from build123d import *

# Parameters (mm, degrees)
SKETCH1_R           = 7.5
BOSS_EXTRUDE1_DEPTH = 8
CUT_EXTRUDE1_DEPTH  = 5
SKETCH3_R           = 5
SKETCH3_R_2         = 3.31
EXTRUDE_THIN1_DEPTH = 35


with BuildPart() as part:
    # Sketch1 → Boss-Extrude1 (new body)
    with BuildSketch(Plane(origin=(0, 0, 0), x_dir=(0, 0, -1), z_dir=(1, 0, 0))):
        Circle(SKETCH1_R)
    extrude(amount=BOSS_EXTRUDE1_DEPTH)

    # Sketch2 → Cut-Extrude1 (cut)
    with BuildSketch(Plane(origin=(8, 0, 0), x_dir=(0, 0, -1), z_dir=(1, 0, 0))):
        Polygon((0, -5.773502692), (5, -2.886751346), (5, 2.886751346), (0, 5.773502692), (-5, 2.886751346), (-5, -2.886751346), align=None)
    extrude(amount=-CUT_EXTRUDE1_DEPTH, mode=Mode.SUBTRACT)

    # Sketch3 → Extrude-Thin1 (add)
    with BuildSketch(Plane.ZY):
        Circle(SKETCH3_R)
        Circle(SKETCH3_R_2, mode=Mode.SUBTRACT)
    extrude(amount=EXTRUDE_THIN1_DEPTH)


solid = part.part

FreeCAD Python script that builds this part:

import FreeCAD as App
import Part
import Sketcher
Q = App.Units.Quantity

doc = App.newDocument("Part")
body = doc.addObject("PartDesign::Body", "Body")

# Sketch on YZ plane
sketch1 = body.newObject("Sketcher::SketchObject", "Sketch")
sketch1.AttachmentSupport = (doc.getObject("YZ_Plane"), [""])
sketch1.MapMode = "FlatFace"
sketch1.addGeometry(Part.Circle(App.Vector(0, 0, 0), App.Vector(0, 0, 1), 8), False)
sketch1.addConstraint([
    Sketcher.Constraint("Coincident", 0, 3, -1, 1),
    Sketcher.Constraint("Diameter", 0, Q("15 mm")),
])
pad1 = body.newObject("PartDesign::Pad", "Pad")
pad1.Profile = sketch1
pad1.Length = 8

# Sketch on YZ plane
sketch2 = body.newObject("Sketcher::SketchObject", "Sketch001")
sketch2.AttachmentSupport = (doc.getObject("YZ_Plane"), [""])
sketch2.MapMode = "FlatFace"
sketch2.AttachmentOffset = App.Placement(App.Vector(0, 0, 8), App.Rotation())
sketch2.addGeometry([
    Part.LineSegment(App.Vector(-6, 0, 0), App.Vector(-3, -5, 0)),  # 0
    Part.LineSegment(App.Vector(-3, -5, 0), App.Vector(3, -5, 0)),  # 1
    Part.LineSegment(App.Vector(3, -5, 0), App.Vector(6, 0, 0)),  # 2
    Part.LineSegment(App.Vector(6, 0, 0), App.Vector(3, 5, 0)),  # 3
    Part.LineSegment(App.Vector(3, 5, 0), App.Vector(-3, 5, 0)),  # 4
    Part.LineSegment(App.Vector(-3, 5, 0), App.Vector(-6, 0, 0)),  # 5
], False)
sketch2.addConstraint([
    Sketcher.Constraint("Coincident", 0, 2, 1, 1),
    Sketcher.Constraint("Coincident", 1, 2, 2, 1),
    Sketcher.Constraint("Coincident", 2, 2, 3, 1),
    Sketcher.Constraint("Coincident", 3, 2, 4, 1),
    Sketcher.Constraint("Coincident", 4, 2, 5, 1),
    Sketcher.Constraint("Coincident", 5, 2, 0, 1),
    Sketcher.Constraint("Horizontal", 1),
    Sketcher.Constraint("Horizontal", 4),
    Sketcher.Constraint("Symmetric", 0, 2, 3, 2, -1, 1),
    Sketcher.Constraint("Symmetric", 2, 2, 5, 2, -1, 1),
    Sketcher.Constraint("PointOnObject", 2, 2, -1),
    Sketcher.Constraint("Parallel", 2, 5),
    Sketcher.Constraint("Vertical", 1, 2, 3, 2),
    Sketcher.Constraint("Angle", 0, Q("-60 deg")),
    Sketcher.Constraint("DistanceY", 0, 2, -1, 1, Q("5 mm")),
    Sketcher.Constraint("DistanceX", 1, 1, 1, 2, Q("5.773503 mm")),
])
pocket1 = body.newObject("PartDesign::Pocket", "Pocket")
pocket1.Profile = sketch2
pocket1.Length = 5

# Sketch on YZ plane
sketch3 = body.newObject("Sketcher::SketchObject", "Sketch002")
sketch3.AttachmentSupport = (doc.getObject("YZ_Plane"), [""])
sketch3.MapMode = "FlatFace"
sketch3.addGeometry([
    Part.Circle(App.Vector(0, 0, 0), App.Vector(0, 0, 1), 5),
    Part.Circle(App.Vector(0, 0, 0), App.Vector(0, 0, 1), 3.3),
], False)
sketch3.addConstraint([
    Sketcher.Constraint("Coincident", 0, 3, -1, 1),
    Sketcher.Constraint("Coincident", 1, 3, -1, 1),
    Sketcher.Constraint("Diameter", 0, Q("10 mm")),
    Sketcher.Constraint("Diameter", 1, Q("6.62 mm")),
])
pad2 = body.newObject("PartDesign::Pad", "Pad001")
pad2.Profile = sketch3
pad2.Length = 35
pad2.Reversed = True

doc.recompute()
